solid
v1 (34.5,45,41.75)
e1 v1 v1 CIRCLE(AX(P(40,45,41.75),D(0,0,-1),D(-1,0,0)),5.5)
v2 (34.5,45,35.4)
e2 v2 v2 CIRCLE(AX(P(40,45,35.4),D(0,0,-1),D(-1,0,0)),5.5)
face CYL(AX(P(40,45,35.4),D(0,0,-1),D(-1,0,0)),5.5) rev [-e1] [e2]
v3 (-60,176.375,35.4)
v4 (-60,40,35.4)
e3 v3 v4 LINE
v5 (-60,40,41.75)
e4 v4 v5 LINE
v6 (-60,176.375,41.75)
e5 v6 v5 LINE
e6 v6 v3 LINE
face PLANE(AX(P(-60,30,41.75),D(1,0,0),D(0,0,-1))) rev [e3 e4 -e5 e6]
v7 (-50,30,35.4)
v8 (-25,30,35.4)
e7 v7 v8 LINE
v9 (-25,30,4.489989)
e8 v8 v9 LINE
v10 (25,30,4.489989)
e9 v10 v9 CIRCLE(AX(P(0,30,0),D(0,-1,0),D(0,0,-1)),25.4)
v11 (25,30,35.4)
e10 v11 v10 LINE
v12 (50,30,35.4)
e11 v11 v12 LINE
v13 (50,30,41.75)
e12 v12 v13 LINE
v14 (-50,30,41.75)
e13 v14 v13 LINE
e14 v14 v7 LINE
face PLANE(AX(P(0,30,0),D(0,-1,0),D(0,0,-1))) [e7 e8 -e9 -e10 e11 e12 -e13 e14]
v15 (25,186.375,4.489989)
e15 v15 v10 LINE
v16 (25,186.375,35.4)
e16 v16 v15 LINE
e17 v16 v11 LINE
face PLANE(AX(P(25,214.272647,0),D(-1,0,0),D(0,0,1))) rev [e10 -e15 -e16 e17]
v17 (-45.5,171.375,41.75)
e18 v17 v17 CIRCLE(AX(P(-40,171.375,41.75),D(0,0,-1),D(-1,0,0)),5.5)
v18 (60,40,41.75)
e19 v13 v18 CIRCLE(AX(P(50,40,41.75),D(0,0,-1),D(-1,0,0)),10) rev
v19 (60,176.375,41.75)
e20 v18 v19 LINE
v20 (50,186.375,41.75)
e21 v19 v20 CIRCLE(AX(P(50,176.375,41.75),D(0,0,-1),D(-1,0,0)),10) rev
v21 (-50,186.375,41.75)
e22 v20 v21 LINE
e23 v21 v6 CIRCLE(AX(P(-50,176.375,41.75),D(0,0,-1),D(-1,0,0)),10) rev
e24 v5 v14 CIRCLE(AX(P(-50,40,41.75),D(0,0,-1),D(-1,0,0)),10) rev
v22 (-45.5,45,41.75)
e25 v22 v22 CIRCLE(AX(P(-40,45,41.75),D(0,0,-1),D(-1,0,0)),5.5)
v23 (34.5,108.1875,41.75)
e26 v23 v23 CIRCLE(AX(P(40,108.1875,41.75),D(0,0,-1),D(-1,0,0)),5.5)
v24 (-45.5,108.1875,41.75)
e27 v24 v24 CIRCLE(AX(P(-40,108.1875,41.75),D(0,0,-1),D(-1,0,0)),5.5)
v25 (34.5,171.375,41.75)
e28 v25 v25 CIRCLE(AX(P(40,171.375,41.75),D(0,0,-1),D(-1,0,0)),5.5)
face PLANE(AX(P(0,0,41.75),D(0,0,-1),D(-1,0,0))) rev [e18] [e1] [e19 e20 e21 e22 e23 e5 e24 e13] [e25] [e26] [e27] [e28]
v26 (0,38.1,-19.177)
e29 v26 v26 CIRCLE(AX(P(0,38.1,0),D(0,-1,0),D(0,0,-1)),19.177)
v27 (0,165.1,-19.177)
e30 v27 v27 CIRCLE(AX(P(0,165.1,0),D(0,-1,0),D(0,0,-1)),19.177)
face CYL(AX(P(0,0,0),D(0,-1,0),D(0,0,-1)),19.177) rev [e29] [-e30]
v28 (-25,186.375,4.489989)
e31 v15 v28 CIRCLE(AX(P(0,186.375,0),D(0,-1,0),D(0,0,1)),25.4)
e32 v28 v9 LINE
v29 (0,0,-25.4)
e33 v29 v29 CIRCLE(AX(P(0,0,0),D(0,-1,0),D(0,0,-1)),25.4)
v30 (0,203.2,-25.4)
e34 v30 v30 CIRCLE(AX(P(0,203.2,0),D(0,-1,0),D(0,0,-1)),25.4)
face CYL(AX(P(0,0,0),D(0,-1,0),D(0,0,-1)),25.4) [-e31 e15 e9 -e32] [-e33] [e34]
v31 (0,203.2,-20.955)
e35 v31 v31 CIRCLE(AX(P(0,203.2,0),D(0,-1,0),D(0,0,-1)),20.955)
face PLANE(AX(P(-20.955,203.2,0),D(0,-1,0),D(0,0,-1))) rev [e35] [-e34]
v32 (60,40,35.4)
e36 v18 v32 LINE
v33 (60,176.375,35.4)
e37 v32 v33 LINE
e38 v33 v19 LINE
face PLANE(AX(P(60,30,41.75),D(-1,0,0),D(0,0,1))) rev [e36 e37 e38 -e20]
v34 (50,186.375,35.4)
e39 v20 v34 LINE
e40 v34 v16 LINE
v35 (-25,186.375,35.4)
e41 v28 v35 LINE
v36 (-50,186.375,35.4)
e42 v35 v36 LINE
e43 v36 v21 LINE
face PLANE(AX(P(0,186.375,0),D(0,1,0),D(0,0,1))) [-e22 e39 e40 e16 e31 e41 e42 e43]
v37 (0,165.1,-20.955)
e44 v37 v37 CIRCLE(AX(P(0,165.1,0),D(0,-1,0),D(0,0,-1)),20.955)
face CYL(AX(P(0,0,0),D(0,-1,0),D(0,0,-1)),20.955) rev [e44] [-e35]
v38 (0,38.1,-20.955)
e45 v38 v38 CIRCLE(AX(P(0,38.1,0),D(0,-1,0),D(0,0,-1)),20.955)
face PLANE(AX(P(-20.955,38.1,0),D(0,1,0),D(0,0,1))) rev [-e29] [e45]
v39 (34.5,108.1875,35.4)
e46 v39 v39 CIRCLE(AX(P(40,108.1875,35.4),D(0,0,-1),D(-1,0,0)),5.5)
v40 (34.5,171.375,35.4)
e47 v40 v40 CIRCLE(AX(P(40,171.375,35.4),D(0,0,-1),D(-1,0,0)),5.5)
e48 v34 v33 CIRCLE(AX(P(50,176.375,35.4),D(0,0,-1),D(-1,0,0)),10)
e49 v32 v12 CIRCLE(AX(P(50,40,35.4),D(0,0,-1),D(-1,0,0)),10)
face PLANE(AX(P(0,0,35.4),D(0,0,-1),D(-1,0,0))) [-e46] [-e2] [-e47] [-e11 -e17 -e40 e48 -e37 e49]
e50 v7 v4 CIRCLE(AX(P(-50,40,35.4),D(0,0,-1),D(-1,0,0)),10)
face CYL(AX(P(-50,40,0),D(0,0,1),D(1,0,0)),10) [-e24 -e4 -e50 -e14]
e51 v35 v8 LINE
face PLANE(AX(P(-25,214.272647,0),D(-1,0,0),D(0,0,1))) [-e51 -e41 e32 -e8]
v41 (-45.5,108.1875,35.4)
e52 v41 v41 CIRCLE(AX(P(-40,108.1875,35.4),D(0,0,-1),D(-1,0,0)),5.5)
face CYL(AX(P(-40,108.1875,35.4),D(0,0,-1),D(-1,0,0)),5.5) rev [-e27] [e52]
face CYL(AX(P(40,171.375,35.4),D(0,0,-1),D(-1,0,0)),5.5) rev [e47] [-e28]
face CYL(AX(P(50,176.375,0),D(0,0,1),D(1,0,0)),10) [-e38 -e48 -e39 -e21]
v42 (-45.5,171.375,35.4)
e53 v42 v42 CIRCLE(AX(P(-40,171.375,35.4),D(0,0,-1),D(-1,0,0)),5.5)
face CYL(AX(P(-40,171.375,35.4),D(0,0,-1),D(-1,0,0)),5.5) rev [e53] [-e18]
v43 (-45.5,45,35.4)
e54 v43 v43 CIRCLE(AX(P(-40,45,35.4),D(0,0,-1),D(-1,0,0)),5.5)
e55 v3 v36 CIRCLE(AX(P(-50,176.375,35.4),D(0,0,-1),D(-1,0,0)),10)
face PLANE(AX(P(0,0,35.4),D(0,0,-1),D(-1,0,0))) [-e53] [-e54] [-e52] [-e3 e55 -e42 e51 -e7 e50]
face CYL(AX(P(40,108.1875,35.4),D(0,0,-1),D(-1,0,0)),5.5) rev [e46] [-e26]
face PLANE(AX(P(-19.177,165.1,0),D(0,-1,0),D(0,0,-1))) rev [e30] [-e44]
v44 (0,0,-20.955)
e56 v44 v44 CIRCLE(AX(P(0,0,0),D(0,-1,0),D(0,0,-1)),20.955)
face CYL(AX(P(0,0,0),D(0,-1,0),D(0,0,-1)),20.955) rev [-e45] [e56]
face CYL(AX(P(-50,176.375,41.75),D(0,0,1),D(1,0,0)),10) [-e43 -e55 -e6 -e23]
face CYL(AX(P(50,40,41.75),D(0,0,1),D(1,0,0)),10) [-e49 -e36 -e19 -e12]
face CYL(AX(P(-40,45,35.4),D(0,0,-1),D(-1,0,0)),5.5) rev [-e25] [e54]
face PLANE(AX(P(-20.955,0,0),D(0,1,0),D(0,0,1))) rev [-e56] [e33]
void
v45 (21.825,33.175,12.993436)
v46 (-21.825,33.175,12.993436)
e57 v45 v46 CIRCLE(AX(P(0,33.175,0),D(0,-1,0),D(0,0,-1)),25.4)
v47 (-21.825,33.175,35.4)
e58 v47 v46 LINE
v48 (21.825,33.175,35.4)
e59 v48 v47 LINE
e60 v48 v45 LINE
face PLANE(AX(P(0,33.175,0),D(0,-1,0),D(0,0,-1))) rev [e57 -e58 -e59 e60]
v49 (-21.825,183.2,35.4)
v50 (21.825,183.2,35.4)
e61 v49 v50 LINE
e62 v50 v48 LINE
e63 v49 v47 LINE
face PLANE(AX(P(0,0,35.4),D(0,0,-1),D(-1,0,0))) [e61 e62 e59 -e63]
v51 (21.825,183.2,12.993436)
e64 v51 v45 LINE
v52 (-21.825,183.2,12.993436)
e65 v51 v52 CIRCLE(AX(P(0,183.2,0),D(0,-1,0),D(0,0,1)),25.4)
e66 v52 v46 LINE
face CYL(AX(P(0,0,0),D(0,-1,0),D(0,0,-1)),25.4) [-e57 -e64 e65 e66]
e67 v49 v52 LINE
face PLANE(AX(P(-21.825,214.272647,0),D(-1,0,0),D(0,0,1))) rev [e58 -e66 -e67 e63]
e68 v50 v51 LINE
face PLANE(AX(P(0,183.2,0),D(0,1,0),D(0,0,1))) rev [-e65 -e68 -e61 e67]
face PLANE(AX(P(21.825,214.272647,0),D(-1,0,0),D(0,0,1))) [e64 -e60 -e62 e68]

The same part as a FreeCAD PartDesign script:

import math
import FreeCAD as App
import Part
import Sketcher
Q = App.Units.Quantity


def edges_at(feature, points):
    """Names of the edges that pass closest to the given points."""
    edges = feature.Shape.Edges
    near = lambda p: min(range(len(edges)), key=lambda i: edges[i].distToShape(Part.Vertex(*p))[0])
    return sorted({f"Edge{near(p) + 1}" for p in points})

doc = App.newDocument("Part")
body = doc.addObject("PartDesign::Body", "Body")

# Sketch on XY plane
sketch1 = body.newObject("Sketcher::SketchObject", "Sketch")
sketch1.AttachmentSupport = (doc.getObject("XY_Plane"), [""])
sketch1.MapMode = "FlatFace"
sketch1.addGeometry(Part.LineSegment(App.Vector(-25.4, 203.2, 0), App.Vector(-25.4, 0, 0)), False)
sketch1.addGeometry(Part.LineSegment(App.Vector(-25.4, 0, 0), App.Vector(-21, 0, 0)), False)
sketch1.addGeometry(Part.LineSegment(App.Vector(-21, 0, 0), App.Vector(-21, 38.1, 0)), False)
sketch1.addGeometry(Part.LineSegment(App.Vector(-21, 38.1, 0), App.Vector(-19.2, 38.1, 0)), False)
sketch1.addGeometry(Part.LineSegment(App.Vector(-19.2, 38.1, 0), App.Vector(-19.2, 165.1, 0)), False)
sketch1.addGeometry(Part.LineSegment(App.Vector(-19.2, 165.1, 0), App.Vector(-21, 165.1, 0)), False)
sketch1.addGeometry(Part.LineSegment(App.Vector(-21, 165.1, 0), App.Vector(-21, 203.2, 0)), False)
sketch1.addGeometry(Part.LineSegment(App.Vector(-21, 203.2, 0), App.Vector(-25.4, 203.2, 0)), False)
sketch1.addConstraint(Sketcher.Constraint("Coincident", 0, 2, 1, 1))
sketch1.addConstraint(Sketcher.Constraint("Coincident", 1, 2, 2, 1))
sketch1.addConstraint(Sketcher.Constraint("Coincident", 2, 2, 3, 1))
sketch1.addConstraint(Sketcher.Constraint("Coincident", 3, 2, 4, 1))
sketch1.addConstraint(Sketcher.Constraint("Coincident", 4, 2, 5, 1))
sketch1.addConstraint(Sketcher.Constraint("Coincident", 5, 2, 6, 1))
sketch1.addConstraint(Sketcher.Constraint("Coincident", 6, 2, 7, 1))
sketch1.addConstraint(Sketcher.Constraint("Coincident", 7, 2, 0, 1))
sketch1.addConstraint(Sketcher.Constraint("Vertical", 0))
sketch1.addConstraint(Sketcher.Constraint("Horizontal", 1))
sketch1.addConstraint(Sketcher.Constraint("Vertical", 2))
sketch1.addConstraint(Sketcher.Constraint("Horizontal", 3))
sketch1.addConstraint(Sketcher.Constraint("Vertical", 4))
sketch1.addConstraint(Sketcher.Constraint("Horizontal", 5))
sketch1.addConstraint(Sketcher.Constraint("Vertical", 6))
sketch1.addConstraint(Sketcher.Constraint("Horizontal", 7))
sketch1.addConstraint(Sketcher.Constraint("PointOnObject", 0, 2, -1))
sketch1.addConstraint(Sketcher.Constraint("Vertical", 2, 2, 5, 2))
sketch1.addConstraint(Sketcher.Constraint("Equal", 2, 6))
sketch1.addConstraint(Sketcher.Constraint("DistanceY", 0, 2, 0, 1, Q("8 in")))
sketch1.addConstraint(Sketcher.Constraint("DistanceY", 4, 1, 4, 2, Q("5 in")))
sketch1.addConstraint(Sketcher.Constraint("DistanceX", 0, 2, -1, 1, Q("1 in")))
sketch1.addConstraint(Sketcher.Constraint("DistanceX", 3, 1, 3, 2, Q("0.07 in")))
sketch1.addConstraint(Sketcher.Constraint("DistanceX", 1, 1, 1, 2, Q("0.175 in")))
revolution = body.newObject("PartDesign::Revolution", "Revolution")
revolution.Profile = sketch1
revolution.ReferenceAxis = (sketch1, ["V_Axis"])
revolution.Angle = 360

# Sketch on XZ plane
sketch2 = body.newObject("Sketcher::SketchObject", "Sketch001")
sketch2.AttachmentSupport = (doc.getObject("XZ_Plane"), [""])
sketch2.MapMode = "FlatFace"
sketch2.AttachmentOffset = App.Placement(App.Vector(0, 0, -33.175), App.Rotation())
sketch2.addGeometry(Part.LineSegment(App.Vector(22, 13, 0), App.Vector(22, 35, 0)), False)
sketch2.addGeometry(Part.LineSegment(App.Vector(22, 35, 0), App.Vector(-22, 35, 0)), False)
sketch2.addGeometry(Part.LineSegment(App.Vector(-22, 35, 0), App.Vector(-22, 13, 0)), False)
sketch2.addGeometry(Part.ArcOfCircle(Part.Circle(App.Vector(0, 0, 0), App.Vector(0, 0, 1), 25), math.radians(31), math.radians(149)), False)
sketch2.addConstraint(Sketcher.Constraint("Coincident", 0, 2, 1, 1))
sketch2.addConstraint(Sketcher.Constraint("Coincident", 1, 2, 2, 1))
sketch2.addConstraint(Sketcher.Constraint("Coincident", 2, 2, 3, 2))
sketch2.addConstraint(Sketcher.Constraint("Coincident", 3, 1, 0, 1))
sketch2.addConstraint(Sketcher.Constraint("Vertical", 0))
sketch2.addConstraint(Sketcher.Constraint("Horizontal", 1))
sketch2.addConstraint(Sketcher.Constraint("Vertical", 2))
sketch2.addConstraint(Sketcher.Constraint("Coincident", 3, 3, -1, 1))
sketch2.addConstraint(Sketcher.Constraint("Horizontal", 2, 2, 3, 1))
sketch2.addConstraint(Sketcher.Constraint("Radius", 3, Q("1 in")))
sketch2.addConstraint(Sketcher.Constraint("DistanceX", 1, 2, 1, 1, 43.65))
sketch2.addConstraint(Sketcher.Constraint("DistanceY", -1, 1, 0, 2, 35.4))
pad1 = body.newObject("PartDesign::Pad", "Pad")
pad1.Profile = sketch2
pad1.Length = Q("0.125 in")

# Sketch on XZ plane
sketch3 = body.newObject("Sketcher::SketchObject", "Sketch002")
sketch3.AttachmentSupport = (doc.getObject("XZ_Plane"), [""])
sketch3.MapMode = "FlatFace"
sketch3.AttachmentOffset = App.Placement(App.Vector(0, 0, -183.2), App.Rotation())
sketch3.addGeometry(Part.LineSegment(App.Vector(25, 4.5, 0), App.Vector(25, 35.4, 0)), False)
sketch3.addGeometry(Part.LineSegment(App.Vector(25, 35.4, 0), App.Vector(21.8, 35.4, 0)), False)
sketch3.addGeometry(Part.LineSegment(App.Vector(21.8, 35.4, 0), App.Vector(21.8, 13, 0)), False)
sketch3.addGeometry(Part.ArcOfCircle(Part.Circle(App.Vector(0, 0, 0), App.Vector(0, 0, 1), 25.4), math.radians(10), math.radians(31)), False)
sketch3.addGeometry(Part.LineSegment(App.Vector(-21.8, 13, 0), App.Vector(-21.8, 35.4, 0)), False)
sketch3.addGeometry(Part.LineSegment(App.Vector(-21.8, 35.4, 0), App.Vector(-25, 35.4, 0)), False)
sketch3.addGeometry(Part.LineSegment(App.Vector(-25, 35.4, 0), App.Vector(-25, 4.5, 0)), False)
sketch3.addGeometry(Part.ArcOfCircle(Part.Circle(App.Vector(0, 0, 0), App.Vector(0, 0, 1), 25.4), math.radians(149), math.radians(170)), False)
sketch3.addConstraint(Sketcher.Constraint("Coincident", 0, 2, 1, 1))
sketch3.addConstraint(Sketcher.Constraint("Coincident", 1, 2, 2, 1))
sketch3.addConstraint(Sketcher.Constraint("Coincident", 2, 2, 3, 2))
sketch3.addConstraint(Sketcher.Constraint("Coincident", 3, 1, 0, 1))
sketch3.addConstraint(Sketcher.Constraint("Coincident", 4, 2, 5, 1))
sketch3.addConstraint(Sketcher.Constraint("Coincident", 5, 2, 6, 1))
sketch3.addConstraint(Sketcher.Constraint("Coincident", 6, 2, 7, 2))
sketch3.addConstraint(Sketcher.Constraint("Coincident", 7, 1, 4, 1))
sketch3.addConstraint(Sketcher.Constraint("Vertical", 0))
sketch3.addConstraint(Sketcher.Constraint("Horizontal", 1))
sketch3.addConstraint(Sketcher.Constraint("Vertical", 2))
sketch3.addConstraint(Sketcher.Constraint("Vertical", 4))
sketch3.addConstraint(Sketcher.Constraint("Horizontal", 5))
sketch3.addConstraint(Sketcher.Constraint("Vertical", 6))
sketch3.addConstraint(Sketcher.Constraint("Coincident", 3, 3, -1, 1))
sketch3.addConstraint(Sketcher.Constraint("Coincident", 7, 3, -1, 1))
sketch3.addConstraint(Sketcher.Constraint("Equal", 3, 7))
sketch3.addConstraint(Sketcher.Constraint("Symmetric", 1, 2, 4, 2, -2))
sketch3.addConstraint(Sketcher.Constraint("Horizontal", 3, 1, 6, 2))
sketch3.addConstraint(Sketcher.Constraint("Radius", 3, Q("1 in")))
sketch3.addConstraint(Sketcher.Constraint("DistanceX", 1, 2, 1, 1, Q("0.125 in")))
sketch3.addConstraint(Sketcher.Constraint("DistanceY", 0, 1, 0, 2, 30.910011))
sketch3.addConstraint(Sketcher.Constraint("DistanceX", -1, 1, 0, 2, 25.0))
pad2 = body.newObject("PartDesign::Pad", "Pad001")
pad2.Profile = sketch3
pad2.Length = 153.2

# Sketch on XZ plane
sketch4 = body.newObject("Sketcher::SketchObject", "Sketch003")
sketch4.AttachmentSupport = (doc.getObject("XZ_Plane"), [""])
sketch4.MapMode = "FlatFace"
sketch4.AttachmentOffset = App.Placement(App.Vector(0, 0, -186.375), App.Rotation())
sketch4.addGeometry(Part.LineSegment(App.Vector(25, 35, 0), App.Vector(25, 4, 0)), False)
sketch4.addGeometry(Part.ArcOfCircle(Part.Circle(App.Vector(0, 0, 0), App.Vector(0, 0, 1), 25), math.radians(10), math.radians(170)), False)
sketch4.addGeometry(Part.LineSegment(App.Vector(-25, 4, 0), App.Vector(-25, 35, 0)), False)
sketch4.addGeometry(Part.LineSegment(App.Vector(-25, 35, 0), App.Vector(25, 35, 0)), False)
sketch4.addConstraint(Sketcher.Constraint("Coincident", 0, 2, 1, 1))
sketch4.addConstraint(Sketcher.Constraint("Coincident", 1, 2, 2, 1))
sketch4.addConstraint(Sketcher.Constraint("Coincident", 2, 2, 3, 1))
sketch4.addConstraint(Sketcher.Constraint("Coincident", 3, 2, 0, 1))
sketch4.addConstraint(Sketcher.Constraint("Vertical", 0))
sketch4.addConstraint(Sketcher.Constraint("Vertical", 2))
sketch4.addConstraint(Sketcher.Constraint("Horizontal", 3))
sketch4.addConstraint(Sketcher.Constraint("Coincident", 1, 3, -1, 1))
sketch4.addConstraint(Sketcher.Constraint("Horizontal", 0, 2, 1, 2))
sketch4.addConstraint(Sketcher.Constraint("Radius", 1, Q("1 in")))
sketch4.addConstraint(Sketcher.Constraint("DistanceX", 3, 1, 3, 2, 50.0))
sketch4.addConstraint(Sketcher.Constraint("DistanceY", 0, 2, 0, 1, 30.910011))
pad3 = body.newObject("PartDesign::Pad", "Pad002")
pad3.Profile = sketch4
pad3.Length = Q("0.125 in")

# Sketch on XY plane
sketch5 = body.newObject("Sketcher::SketchObject", "Sketch004")
sketch5.AttachmentSupport = (doc.getObject("XY_Plane"), [""])
sketch5.MapMode = "FlatFace"
sketch5.AttachmentOffset = App.Placement(App.Vector(0, 0, 35.4), App.Rotation())
sketch5.addGeometry(Part.LineSegment(App.Vector(-60, 186, 0), App.Vector(-60, 30, 0)), False)
sketch5.addGeometry(Part.LineSegment(App.Vector(-60, 30, 0), App.Vector(60, 30, 0)), False)
sketch5.addGeometry(Part.LineSegment(App.Vector(60, 30, 0), App.Vector(60, 186, 0)), False)
sketch5.addGeometry(Part.LineSegment(App.Vector(60, 186, 0), App.Vector(-60, 186, 0)), False)
sketch5.addConstraint(Sketcher.Constraint("Coincident", 0, 2, 1, 1))
sketch5.addConstraint(Sketcher.Constraint("Coincident", 1, 2, 2, 1))
sketch5.addConstraint(Sketcher.Constraint("Coincident", 2, 2, 3, 1))
sketch5.addConstraint(Sketcher.Constraint("Coincident", 3, 2, 0, 1))
sketch5.addConstraint(Sketcher.Constraint("Vertical", 0))
sketch5.addConstraint(Sketcher.Constraint("Horizontal", 1))
sketch5.addConstraint(Sketcher.Constraint("Vertical", 2))
sketch5.addConstraint(Sketcher.Constraint("Horizontal", 3))
sketch5.addConstraint(Sketcher.Constraint("DistanceX", 1, 1, 1, 2, 120.0))
sketch5.addConstraint(Sketcher.Constraint("DistanceY", 0, 2, 0, 1, 156.375))
sketch5.addConstraint(Sketcher.Constraint("DistanceX", 0, 2, -1, 1, 60.0))
sketch5.addConstraint(Sketcher.Constraint("DistanceY", -1, 1, 0, 2, 30.0))
pad4 = body.newObject("PartDesign::Pad", "Pad003")
pad4.Profile = sketch5
pad4.Length = Q("0.25 in")
doc.recompute()

fillet = body.newObject("PartDesign::Fillet", "Fillet")
fillet.Base = (pad4, edges_at(pad4, [
    (-60, 186.375, 38.575),
    (-60, 30, 38.575),
    (60, 30, 38.575),
    (60, 186.375, 38.575),
]))
fillet.Radius = 10

# Sketch on XY plane
sketch6 = body.newObject("Sketcher::SketchObject", "Sketch005")
sketch6.AttachmentSupport = (doc.getObject("XY_Plane"), [""])
sketch6.MapMode = "FlatFace"
sketch6.AttachmentOffset = App.Placement(App.Vector(0, 0, 35.4), App.Rotation())
sketch6.addGeometry(Part.Circle(App.Vector(-40, 45, 0), App.Vector(0, 0, 1), 6), False)
sketch6.addGeometry(Part.Circle(App.Vector(-40, 108, 0), App.Vector(0, 0, 1), 6), False)
sketch6.addGeometry(Part.Circle(App.Vector(-40, 171, 0), App.Vector(0, 0, 1), 6), False)
sketch6.addGeometry(Part.Circle(App.Vector(40, 171, 0), App.Vector(0, 0, 1), 6), False)
sketch6.addGeometry(Part.Circle(App.Vector(40, 108, 0), App.Vector(0, 0, 1), 6), False)
sketch6.addGeometry(Part.Circle(App.Vector(40, 45, 0), App.Vector(0, 0, 1), 6), False)
sketch6.addConstraint(Sketcher.Constraint("Equal", 0, 1))
sketch6.addConstraint(Sketcher.Constraint("Equal", 1, 2))
sketch6.addConstraint(Sketcher.Constraint("Equal", 2, 3))
sketch6.addConstraint(Sketcher.Constraint("Equal", 3, 4))
sketch6.addConstraint(Sketcher.Constraint("Equal", 4, 5))
sketch6.addConstraint(Sketcher.Constraint("Symmetric", 2, 3, 3, 3, -2))
sketch6.addConstraint(Sketcher.Constraint("Symmetric", 1, 3, 4, 3, -2))
sketch6.addConstraint(Sketcher.Constraint("Symmetric", 0, 3, 5, 3, -2))
sketch6.addConstraint(Sketcher.Constraint("Vertical", 0, 3, 1, 3))
sketch6.addConstraint(Sketcher.Constraint("Vertical", 1, 3, 2, 3))
sketch6.addConstraint(Sketcher.Constraint("Diameter", 0, 11.0))
sketch6.addConstraint(Sketcher.Constraint("DistanceX", 0, 3, -1, 1, 40.0))
sketch6.addConstraint(Sketcher.Constraint("DistanceY", -1, 1, 0, 3, 45.0))
sketch6.addConstraint(Sketcher.Constraint("DistanceY", -1, 1, 1, 3, 108.1875))
sketch6.addConstraint(Sketcher.Constraint("DistanceY", -1, 1, 2, 3, 171.375))
doc.recompute()
hole = body.newObject("PartDesign::Hole", "Hole")
hole.Profile = sketch6
hole.ThreadType = "None"
hole.Diameter = 11
hole.DepthType = "ThroughAll"
hole.Reversed = True

doc.recompute()
